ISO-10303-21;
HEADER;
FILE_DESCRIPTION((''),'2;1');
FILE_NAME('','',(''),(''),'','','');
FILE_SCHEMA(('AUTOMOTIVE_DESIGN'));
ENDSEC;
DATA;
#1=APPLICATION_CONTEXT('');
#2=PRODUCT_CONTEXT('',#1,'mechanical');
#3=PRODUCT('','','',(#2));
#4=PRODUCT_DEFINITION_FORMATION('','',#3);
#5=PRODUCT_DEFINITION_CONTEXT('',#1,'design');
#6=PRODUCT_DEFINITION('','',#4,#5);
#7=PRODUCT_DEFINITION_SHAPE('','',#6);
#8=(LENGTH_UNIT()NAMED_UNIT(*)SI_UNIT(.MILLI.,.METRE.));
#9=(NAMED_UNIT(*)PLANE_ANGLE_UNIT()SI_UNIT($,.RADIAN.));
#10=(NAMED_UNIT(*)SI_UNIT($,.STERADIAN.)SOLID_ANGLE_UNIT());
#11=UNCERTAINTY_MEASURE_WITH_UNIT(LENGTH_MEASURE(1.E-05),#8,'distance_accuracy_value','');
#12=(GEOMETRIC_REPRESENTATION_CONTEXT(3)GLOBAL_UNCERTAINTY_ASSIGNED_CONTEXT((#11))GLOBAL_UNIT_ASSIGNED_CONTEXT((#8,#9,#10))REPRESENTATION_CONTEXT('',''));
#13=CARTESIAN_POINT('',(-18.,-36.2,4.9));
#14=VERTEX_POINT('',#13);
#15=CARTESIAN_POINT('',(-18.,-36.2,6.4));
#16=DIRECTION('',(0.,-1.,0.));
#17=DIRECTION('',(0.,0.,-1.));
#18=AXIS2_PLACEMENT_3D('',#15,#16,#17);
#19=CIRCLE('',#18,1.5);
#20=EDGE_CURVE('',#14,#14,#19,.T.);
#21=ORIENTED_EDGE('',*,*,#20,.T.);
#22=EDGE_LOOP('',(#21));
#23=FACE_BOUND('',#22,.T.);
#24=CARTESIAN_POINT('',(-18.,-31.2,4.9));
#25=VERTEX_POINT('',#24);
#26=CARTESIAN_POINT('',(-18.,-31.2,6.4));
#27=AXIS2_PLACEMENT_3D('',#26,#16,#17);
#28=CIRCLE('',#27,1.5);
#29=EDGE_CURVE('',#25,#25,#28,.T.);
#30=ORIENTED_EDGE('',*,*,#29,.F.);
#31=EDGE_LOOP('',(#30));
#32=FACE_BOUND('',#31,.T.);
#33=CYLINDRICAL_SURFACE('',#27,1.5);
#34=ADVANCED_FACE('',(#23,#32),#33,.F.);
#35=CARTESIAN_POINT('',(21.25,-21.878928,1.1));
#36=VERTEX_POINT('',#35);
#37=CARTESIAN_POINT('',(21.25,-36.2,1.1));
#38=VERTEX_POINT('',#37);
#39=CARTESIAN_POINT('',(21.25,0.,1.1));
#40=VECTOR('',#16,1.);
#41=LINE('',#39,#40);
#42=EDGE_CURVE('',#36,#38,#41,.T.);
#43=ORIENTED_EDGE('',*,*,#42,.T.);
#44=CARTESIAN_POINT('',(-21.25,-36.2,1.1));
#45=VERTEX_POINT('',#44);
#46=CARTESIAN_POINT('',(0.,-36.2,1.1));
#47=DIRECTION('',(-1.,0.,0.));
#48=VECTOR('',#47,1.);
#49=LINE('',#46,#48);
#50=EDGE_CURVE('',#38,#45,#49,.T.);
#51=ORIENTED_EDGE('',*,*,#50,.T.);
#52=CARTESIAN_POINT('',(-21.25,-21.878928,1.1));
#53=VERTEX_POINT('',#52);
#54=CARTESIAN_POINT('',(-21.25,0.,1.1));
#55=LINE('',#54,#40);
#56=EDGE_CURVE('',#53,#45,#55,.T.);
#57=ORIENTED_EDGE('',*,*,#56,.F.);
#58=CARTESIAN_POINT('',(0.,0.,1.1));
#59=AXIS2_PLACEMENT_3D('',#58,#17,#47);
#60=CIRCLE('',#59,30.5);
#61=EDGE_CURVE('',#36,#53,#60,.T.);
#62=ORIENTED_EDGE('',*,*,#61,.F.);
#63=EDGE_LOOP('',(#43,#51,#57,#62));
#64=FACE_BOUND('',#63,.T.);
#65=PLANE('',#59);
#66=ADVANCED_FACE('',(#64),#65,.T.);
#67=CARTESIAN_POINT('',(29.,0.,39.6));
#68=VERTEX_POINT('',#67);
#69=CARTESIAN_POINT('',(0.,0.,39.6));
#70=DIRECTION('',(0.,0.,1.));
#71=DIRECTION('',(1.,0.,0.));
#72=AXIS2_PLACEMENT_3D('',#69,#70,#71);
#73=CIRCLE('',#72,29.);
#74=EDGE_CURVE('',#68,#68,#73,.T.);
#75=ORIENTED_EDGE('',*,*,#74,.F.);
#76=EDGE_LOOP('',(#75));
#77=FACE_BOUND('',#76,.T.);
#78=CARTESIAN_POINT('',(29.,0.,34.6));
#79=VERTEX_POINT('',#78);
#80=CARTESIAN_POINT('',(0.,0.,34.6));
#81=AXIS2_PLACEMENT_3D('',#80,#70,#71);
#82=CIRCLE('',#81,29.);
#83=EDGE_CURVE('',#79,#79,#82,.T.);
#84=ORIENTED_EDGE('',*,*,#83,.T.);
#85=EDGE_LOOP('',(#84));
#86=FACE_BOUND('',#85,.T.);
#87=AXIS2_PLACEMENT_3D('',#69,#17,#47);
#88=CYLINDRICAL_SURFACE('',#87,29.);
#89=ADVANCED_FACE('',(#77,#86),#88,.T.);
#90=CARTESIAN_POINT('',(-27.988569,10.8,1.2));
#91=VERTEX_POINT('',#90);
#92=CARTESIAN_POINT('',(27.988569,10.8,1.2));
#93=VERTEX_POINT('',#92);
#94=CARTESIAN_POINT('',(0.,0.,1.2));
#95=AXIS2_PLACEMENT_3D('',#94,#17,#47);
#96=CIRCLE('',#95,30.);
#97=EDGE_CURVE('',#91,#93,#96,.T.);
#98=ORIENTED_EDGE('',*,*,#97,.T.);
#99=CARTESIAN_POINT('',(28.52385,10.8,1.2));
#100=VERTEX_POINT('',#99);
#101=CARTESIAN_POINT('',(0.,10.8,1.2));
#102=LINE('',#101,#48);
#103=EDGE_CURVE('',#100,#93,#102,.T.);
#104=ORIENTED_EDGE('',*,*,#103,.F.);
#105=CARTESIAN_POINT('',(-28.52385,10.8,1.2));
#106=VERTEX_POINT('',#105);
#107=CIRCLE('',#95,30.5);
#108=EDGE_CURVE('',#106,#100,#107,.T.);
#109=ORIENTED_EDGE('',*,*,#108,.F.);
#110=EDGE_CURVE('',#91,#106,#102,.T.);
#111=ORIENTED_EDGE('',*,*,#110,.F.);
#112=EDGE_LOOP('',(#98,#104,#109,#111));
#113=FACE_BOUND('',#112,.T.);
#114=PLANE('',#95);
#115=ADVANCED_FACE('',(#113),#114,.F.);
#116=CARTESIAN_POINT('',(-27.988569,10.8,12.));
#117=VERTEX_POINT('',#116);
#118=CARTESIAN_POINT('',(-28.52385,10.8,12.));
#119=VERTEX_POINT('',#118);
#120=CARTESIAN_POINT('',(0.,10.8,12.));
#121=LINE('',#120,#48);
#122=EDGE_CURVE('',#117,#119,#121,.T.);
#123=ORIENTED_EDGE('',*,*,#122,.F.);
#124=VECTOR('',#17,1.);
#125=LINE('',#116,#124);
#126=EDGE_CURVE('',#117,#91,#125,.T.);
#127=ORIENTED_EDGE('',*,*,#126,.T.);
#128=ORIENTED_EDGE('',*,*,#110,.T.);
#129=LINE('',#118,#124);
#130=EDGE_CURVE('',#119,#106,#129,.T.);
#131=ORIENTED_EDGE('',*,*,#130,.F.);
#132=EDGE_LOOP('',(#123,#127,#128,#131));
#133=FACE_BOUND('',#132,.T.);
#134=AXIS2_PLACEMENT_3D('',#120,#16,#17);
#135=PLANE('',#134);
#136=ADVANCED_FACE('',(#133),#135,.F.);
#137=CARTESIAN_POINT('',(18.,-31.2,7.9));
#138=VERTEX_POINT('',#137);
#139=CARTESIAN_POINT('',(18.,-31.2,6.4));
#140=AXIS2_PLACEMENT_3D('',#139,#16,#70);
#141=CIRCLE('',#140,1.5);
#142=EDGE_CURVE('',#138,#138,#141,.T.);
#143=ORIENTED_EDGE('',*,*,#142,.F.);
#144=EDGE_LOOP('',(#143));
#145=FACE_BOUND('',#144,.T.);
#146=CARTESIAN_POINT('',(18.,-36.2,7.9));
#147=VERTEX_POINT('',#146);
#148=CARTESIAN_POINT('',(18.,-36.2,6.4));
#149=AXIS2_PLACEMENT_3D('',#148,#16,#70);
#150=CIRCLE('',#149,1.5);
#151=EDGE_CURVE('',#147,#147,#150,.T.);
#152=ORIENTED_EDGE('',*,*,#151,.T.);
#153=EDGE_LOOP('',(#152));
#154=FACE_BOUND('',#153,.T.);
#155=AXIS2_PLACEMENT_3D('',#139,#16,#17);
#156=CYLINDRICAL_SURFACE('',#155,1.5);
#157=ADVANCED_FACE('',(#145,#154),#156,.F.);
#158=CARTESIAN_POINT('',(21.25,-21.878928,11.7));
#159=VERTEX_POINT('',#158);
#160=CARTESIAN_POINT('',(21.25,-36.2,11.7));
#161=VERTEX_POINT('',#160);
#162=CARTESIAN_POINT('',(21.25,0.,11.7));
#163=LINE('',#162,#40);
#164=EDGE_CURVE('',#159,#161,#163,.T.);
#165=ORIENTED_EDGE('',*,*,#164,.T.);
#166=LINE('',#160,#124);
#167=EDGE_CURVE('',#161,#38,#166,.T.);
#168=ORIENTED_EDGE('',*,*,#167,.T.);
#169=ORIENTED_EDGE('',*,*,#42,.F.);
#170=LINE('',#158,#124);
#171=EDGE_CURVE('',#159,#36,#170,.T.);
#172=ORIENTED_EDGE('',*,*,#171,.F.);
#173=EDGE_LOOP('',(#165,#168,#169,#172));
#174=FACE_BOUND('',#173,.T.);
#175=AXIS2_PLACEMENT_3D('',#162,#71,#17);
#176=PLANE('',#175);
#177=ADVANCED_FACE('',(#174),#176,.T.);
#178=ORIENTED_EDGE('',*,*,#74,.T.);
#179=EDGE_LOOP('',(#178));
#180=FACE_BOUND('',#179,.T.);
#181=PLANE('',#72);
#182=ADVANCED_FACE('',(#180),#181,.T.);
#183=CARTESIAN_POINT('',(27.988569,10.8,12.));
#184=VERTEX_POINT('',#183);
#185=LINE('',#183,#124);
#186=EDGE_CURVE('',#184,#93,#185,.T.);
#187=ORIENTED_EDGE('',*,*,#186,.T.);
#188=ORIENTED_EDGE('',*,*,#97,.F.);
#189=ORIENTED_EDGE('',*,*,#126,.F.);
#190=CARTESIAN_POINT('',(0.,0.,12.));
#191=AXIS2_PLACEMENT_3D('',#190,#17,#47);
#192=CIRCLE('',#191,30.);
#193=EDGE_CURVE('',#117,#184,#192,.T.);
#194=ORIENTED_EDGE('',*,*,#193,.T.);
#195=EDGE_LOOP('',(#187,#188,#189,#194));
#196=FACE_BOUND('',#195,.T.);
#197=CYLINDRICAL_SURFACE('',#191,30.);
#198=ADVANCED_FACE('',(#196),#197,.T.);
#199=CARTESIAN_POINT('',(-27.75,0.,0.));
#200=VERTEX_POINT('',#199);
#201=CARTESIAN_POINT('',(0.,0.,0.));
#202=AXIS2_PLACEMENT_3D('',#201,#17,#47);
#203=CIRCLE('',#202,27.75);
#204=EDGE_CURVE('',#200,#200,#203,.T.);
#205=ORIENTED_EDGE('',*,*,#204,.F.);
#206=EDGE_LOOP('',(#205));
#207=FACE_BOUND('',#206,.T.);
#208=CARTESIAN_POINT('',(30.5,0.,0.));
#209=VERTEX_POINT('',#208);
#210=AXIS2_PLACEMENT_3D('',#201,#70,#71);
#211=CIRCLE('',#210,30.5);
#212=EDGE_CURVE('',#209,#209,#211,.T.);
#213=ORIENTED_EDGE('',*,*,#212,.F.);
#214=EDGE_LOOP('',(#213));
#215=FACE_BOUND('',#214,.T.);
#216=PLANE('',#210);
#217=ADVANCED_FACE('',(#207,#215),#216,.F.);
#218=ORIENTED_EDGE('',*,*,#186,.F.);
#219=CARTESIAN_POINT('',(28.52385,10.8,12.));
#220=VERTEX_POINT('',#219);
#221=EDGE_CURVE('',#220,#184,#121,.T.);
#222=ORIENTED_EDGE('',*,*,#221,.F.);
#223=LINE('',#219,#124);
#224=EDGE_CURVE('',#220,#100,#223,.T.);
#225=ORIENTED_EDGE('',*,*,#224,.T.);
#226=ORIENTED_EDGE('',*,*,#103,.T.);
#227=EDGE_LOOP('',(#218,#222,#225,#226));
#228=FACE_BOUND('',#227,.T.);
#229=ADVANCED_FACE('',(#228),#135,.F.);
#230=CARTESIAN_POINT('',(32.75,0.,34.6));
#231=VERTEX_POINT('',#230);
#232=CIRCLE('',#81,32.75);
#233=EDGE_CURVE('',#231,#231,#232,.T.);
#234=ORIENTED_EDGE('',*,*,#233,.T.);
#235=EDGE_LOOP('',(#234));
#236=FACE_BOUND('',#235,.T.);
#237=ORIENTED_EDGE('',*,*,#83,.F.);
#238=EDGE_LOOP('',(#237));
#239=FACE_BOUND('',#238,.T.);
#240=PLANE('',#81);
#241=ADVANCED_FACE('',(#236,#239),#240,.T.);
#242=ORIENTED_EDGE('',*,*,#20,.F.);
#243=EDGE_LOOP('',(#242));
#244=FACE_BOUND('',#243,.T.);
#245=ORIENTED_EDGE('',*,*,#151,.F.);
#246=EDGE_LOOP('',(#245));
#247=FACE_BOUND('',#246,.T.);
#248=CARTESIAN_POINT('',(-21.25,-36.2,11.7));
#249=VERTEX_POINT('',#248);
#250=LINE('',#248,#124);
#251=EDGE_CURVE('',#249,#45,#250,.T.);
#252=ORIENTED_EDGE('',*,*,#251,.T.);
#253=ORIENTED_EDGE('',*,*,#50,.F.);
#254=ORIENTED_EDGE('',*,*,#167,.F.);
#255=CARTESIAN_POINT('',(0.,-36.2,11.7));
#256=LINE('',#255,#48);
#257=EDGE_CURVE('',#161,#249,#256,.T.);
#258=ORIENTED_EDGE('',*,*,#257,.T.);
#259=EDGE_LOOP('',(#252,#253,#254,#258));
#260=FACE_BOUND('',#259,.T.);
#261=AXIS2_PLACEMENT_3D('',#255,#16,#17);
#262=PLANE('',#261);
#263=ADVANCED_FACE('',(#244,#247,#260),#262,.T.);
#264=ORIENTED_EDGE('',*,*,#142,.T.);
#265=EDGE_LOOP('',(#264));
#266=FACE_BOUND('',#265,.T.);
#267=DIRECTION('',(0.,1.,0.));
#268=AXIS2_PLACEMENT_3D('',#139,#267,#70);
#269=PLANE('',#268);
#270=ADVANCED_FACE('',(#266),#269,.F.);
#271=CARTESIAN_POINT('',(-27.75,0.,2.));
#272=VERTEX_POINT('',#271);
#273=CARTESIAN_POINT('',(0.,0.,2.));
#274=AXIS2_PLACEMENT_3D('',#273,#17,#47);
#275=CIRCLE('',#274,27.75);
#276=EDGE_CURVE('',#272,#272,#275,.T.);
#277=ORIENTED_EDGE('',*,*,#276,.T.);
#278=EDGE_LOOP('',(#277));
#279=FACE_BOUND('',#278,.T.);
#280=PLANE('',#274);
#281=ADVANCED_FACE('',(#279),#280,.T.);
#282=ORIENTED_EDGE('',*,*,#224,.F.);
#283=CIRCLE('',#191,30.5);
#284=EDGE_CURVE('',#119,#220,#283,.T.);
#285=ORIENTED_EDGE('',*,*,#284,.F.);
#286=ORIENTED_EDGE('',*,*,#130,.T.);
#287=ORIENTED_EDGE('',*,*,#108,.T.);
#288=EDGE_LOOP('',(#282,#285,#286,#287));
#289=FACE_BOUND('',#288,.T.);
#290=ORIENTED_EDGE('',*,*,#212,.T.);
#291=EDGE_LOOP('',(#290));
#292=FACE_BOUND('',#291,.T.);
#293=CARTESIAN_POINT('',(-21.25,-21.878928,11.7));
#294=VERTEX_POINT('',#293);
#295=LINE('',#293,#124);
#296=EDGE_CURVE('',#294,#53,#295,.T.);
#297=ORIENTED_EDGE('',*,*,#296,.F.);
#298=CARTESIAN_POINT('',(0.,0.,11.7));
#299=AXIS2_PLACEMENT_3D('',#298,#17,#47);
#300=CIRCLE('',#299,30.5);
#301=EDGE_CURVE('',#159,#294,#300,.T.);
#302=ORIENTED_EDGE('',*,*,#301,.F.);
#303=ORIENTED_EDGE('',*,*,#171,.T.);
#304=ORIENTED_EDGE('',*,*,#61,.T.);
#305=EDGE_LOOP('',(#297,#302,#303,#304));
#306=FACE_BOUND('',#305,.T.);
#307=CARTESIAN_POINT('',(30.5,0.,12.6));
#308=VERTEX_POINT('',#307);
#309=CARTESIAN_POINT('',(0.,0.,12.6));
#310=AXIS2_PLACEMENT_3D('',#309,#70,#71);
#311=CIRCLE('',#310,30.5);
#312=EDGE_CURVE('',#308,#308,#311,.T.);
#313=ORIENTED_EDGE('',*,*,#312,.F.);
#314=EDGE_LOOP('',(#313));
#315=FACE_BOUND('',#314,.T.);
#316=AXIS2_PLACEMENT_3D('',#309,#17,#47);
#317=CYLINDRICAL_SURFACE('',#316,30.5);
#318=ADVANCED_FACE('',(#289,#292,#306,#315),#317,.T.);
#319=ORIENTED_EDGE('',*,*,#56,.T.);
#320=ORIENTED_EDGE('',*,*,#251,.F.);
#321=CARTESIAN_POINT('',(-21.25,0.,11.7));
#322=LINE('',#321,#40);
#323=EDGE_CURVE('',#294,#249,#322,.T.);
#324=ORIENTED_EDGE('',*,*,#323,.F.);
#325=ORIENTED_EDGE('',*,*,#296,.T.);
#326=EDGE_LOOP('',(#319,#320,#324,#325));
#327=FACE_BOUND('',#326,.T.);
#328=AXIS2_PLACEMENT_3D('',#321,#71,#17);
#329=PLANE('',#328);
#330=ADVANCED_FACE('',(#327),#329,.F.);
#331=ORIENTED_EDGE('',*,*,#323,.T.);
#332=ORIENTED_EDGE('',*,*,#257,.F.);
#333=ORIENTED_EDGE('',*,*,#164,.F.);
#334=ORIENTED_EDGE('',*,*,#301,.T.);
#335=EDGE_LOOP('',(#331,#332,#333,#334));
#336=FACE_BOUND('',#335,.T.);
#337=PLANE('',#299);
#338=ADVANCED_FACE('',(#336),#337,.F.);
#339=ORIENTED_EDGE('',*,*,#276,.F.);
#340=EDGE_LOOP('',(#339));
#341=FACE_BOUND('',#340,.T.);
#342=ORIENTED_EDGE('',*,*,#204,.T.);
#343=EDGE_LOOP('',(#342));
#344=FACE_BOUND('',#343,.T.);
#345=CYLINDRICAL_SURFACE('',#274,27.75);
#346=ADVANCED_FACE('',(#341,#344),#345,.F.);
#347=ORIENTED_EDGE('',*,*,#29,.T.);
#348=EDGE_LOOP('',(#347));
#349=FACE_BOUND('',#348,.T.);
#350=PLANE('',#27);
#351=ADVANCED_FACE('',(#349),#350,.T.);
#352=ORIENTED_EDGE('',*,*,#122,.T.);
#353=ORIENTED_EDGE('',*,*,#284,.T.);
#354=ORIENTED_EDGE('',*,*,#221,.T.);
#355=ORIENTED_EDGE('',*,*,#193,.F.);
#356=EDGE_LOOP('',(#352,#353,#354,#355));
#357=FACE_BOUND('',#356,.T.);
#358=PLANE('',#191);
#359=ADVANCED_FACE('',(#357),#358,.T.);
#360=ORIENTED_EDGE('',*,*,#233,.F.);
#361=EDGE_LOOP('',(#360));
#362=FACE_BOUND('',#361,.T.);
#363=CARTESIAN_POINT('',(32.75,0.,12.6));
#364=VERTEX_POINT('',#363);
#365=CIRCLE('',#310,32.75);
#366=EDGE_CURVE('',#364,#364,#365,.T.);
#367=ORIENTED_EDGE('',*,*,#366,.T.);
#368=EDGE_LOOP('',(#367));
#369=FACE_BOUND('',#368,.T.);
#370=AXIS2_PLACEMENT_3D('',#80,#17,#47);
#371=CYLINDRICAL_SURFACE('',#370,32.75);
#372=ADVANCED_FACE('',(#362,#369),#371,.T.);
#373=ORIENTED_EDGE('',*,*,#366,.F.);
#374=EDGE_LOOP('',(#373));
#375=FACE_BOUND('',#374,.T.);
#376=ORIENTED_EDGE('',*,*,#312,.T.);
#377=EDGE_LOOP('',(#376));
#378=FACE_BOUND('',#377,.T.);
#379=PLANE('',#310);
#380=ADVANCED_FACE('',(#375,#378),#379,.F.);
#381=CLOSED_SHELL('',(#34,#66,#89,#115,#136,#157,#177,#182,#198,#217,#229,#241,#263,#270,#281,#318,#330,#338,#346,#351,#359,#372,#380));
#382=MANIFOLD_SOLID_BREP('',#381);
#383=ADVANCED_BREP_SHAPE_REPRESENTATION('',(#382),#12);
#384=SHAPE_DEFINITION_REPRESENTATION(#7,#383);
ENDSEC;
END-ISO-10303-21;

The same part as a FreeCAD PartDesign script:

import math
import FreeCAD as App
import Part
import Sketcher

doc = App.newDocument("Part")
body = doc.addObject("PartDesign::Body", "Body")

sketch1 = body.newObject("Sketcher::SketchObject", "Sketch")
sketch1.AttachmentSupport = (doc.getObject("XY_Plane"), [""])
sketch1.MapMode = "FlatFace"
sketch1.addGeometry(Part.Circle(App.Vector(0, 0, 0), App.Vector(0, 0, 1), 30), False)
sketch1.addConstraint([
    Sketcher.Constraint("Coincident", 0, 3, -1, 1),
    Sketcher.Constraint("Diameter", 0, 61.0),
])
pad1 = body.newObject("PartDesign::Pad", "Pad")
pad1.Profile = sketch1
pad1.Length = 12.6

sketch2 = body.newObject("Sketcher::SketchObject", "Sketch001")
sketch2.AttachmentSupport = (doc.getObject("XY_Plane"), [""])
sketch2.MapMode = "FlatFace"
sketch2.AttachmentOffset = App.Placement(App.Vector(0, 0, 12.6), App.Rotation())
sketch2.addGeometry(Part.Circle(App.Vector(0, 0, 0), App.Vector(0, 0, 1), 33), False)
sketch2.addConstraint([
    Sketcher.Constraint("Coincident", 0, 3, -1, 1),
    Sketcher.Constraint("Diameter", 0, 65.5),
])
pad2 = body.newObject("PartDesign::Pad", "Pad001")
pad2.Profile = sketch2
pad2.Length = 22

sketch3 = body.newObject("Sketcher::SketchObject", "Sketch002")
sketch3.AttachmentSupport = (doc.getObject("XY_Plane"), [""])
sketch3.MapMode = "FlatFace"
sketch3.AttachmentOffset = App.Placement(App.Vector(0, 0, 34.6), App.Rotation())
sketch3.addGeometry(Part.Circle(App.Vector(0, 0, 0), App.Vector(0, 0, 1), 29), False)
sketch3.addConstraint([
    Sketcher.Constraint("Coincident", 0, 3, -1, 1),
    Sketcher.Constraint("Diameter", 0, 58.0),
])
pad3 = body.newObject("PartDesign::Pad", "Pad002")
pad3.Profile = sketch3
pad3.Length = 5

sketch4 = body.newObject("Sketcher::SketchObject", "Sketch003")
sketch4.AttachmentSupport = (doc.getObject("XY_Plane"), [""])
sketch4.MapMode = "FlatFace"
sketch4.AttachmentOffset = App.Placement(App.Vector(0, 0, 1.1), App.Rotation())
sketch4.addGeometry([
    Part.ArcOfCircle(Part.Circle(App.Vector(0, 0, 0), App.Vector(0, 0, 1), 31), math.radians(-134), math.radians(-46)),
    Part.LineSegment(App.Vector(21, -22, 0), App.Vector(21, -36, 0)),
    Part.LineSegment(App.Vector(21, -36, 0), App.Vector(-21, -36, 0)),
    Part.LineSegment(App.Vector(-21, -36, 0), App.Vector(-21, -22, 0)),
], False)
sketch4.addConstraint([
    Sketcher.Constraint("Coincident", 0, 2, 1, 1),
    Sketcher.Constraint("Coincident", 1, 2, 2, 1),
    Sketcher.Constraint("Coincident", 2, 2, 3, 1),
    Sketcher.Constraint("Coincident", 3, 2, 0, 1),
    Sketcher.Constraint("Vertical", 1),
    Sketcher.Constraint("Horizontal", 2),
    Sketcher.Constraint("Vertical", 3),
    Sketcher.Constraint("Coincident", 0, 3, -1, 1),
    Sketcher.Constraint("Horizontal", 0, 2, 3, 2),
    Sketcher.Constraint("Radius", 0, 30.5),
    Sketcher.Constraint("DistanceX", 2, 2, 2, 1, 42.5),
    Sketcher.Constraint("DistanceY", 1, 2, -1, 1, 36.2),
])
pad4 = body.newObject("PartDesign::Pad", "Pad003")
pad4.Profile = sketch4
pad4.Length = 10.6

sketch5 = body.newObject("Sketcher::SketchObject", "Sketch004")
sketch5.AttachmentSupport = (doc.getObject("XZ_Plane"), [""])
sketch5.MapMode = "FlatFace"
sketch5.AttachmentOffset = App.Placement(App.Vector(0, 0, 36.2), App.Rotation())
sketch5.addGeometry([
    Part.Circle(App.Vector(-18, 6.4, 0), App.Vector(0, 0, 1), 1.5),
    Part.Circle(App.Vector(18, 6.4, 0), App.Vector(0, 0, 1), 1.5),
], False)
sketch5.addConstraint([
    Sketcher.Constraint("Equal", 0, 1),
    Sketcher.Constraint("Symmetric", 0, 3, 1, 3, -2),
    Sketcher.Constraint("Diameter", 0, 3.0),
    Sketcher.Constraint("DistanceX", 0, 3, -1, 1, 18.0),
    Sketcher.Constraint("DistanceY", -1, 1, 0, 3, 6.4),
])
pocket1 = body.newObject("PartDesign::Pocket", "Pocket")
pocket1.Profile = sketch5
pocket1.Length = 5

sketch6 = body.newObject("Sketcher::SketchObject", "Sketch005")
sketch6.AttachmentSupport = (doc.getObject("XY_Plane"), [""])
sketch6.MapMode = "FlatFace"
sketch6.addGeometry(Part.Circle(App.Vector(0, 0, 0), App.Vector(0, 0, 1), 28), False)
sketch6.addConstraint([
    Sketcher.Constraint("Coincident", 0, 3, -1, 1),
    Sketcher.Constraint("Diameter", 0, 55.5),
])
pocket2 = body.newObject("PartDesign::Pocket", "Pocket001")
pocket2.Profile = sketch6
pocket2.Length = 2
pocket2.Reversed = True

sketch7 = body.newObject("Sketcher::SketchObject", "Sketch006")
sketch7.AttachmentSupport = (doc.getObject("XY_Plane"), [""])
sketch7.MapMode = "FlatFace"
sketch7.AttachmentOffset = App.Placement(App.Vector(0, 0, 1.2), App.Rotation())
sketch7.addGeometry([
    Part.ArcOfCircle(Part.Circle(App.Vector(0, 0, 0), App.Vector(0, 0, 1), 30.5), math.radians(21), math.radians(159)),
    Part.LineSegment(App.Vector(28.5, 10.8, 0), App.Vector(28, 10.8, 0)),
    Part.ArcOfCircle(Part.Circle(App.Vector(0, 0, 0), App.Vector(0, 0, 1), 30), math.radians(21), math.radians(159)),
    Part.LineSegment(App.Vector(-28, 10.8, 0), App.Vector(-28.5, 10.8, 0)),
], False)
sketch7.addConstraint([
    Sketcher.Constraint("Coincident", 0, 1, 1, 1),
    Sketcher.Constraint("Coincident", 1, 2, 2, 1),
    Sketcher.Constraint("Coincident", 2, 2, 3, 1),
    Sketcher.Constraint("Coincident", 3, 2, 0, 2),
    Sketcher.Constraint("Horizontal", 1),
    Sketcher.Constraint("Horizontal", 3),
    Sketcher.Constraint("Coincident", 0, 3, -1, 1),
    Sketcher.Constraint("Coincident", 2, 3, -1, 1),
    Sketcher.Constraint("Horizontal", 1, 2, 2, 2),
    Sketcher.Constraint("Radius", 2, 30.0),
    Sketcher.Constraint("Radius", 0, 30.5),
    Sketcher.Constraint("DistanceY", -1, 1, 0, 1, 10.8),
])
pocket3 = body.newObject("PartDesign::Pocket", "Pocket002")
pocket3.Profile = sketch7
pocket3.Length = 10.8
pocket3.Reversed = True

doc.recompute()
